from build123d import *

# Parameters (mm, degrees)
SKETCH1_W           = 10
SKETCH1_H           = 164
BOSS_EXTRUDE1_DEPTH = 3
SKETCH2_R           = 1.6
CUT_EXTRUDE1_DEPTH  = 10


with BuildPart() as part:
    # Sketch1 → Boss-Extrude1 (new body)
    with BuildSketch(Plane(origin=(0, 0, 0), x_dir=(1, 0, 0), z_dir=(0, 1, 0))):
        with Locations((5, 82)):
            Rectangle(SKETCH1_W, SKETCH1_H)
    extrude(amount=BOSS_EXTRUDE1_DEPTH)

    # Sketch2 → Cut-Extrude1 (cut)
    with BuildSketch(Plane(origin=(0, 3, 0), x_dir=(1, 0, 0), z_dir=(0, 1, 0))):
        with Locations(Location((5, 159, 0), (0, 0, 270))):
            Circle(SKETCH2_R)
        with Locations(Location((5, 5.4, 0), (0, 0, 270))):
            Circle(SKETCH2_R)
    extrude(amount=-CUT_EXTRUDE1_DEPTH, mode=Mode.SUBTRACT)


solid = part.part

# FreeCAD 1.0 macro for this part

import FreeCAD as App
import Part
import Sketcher

V = App.Vector
Q = App.Units.Quantity

doc = App.newDocument("Part")
body = doc.addObject("PartDesign::Body", "Body")

# Sketch on XZ plane
sketch1 = body.newObject("Sketcher::SketchObject", "Sketch")
sketch1.AttachmentSupport = (doc.getObject("XZ_Plane"), [""])
sketch1.MapMode = "FlatFace"
sketch1.addGeometry([
    Part.LineSegment(V(0, -164, 0), V(0, 0, 0)),
    Part.LineSegment(V(0, 0, 0), V(10, 0, 0)),
    Part.LineSegment(V(10, 0, 0), V(10, -164, 0)),
    Part.LineSegment(V(10, -164, 0), V(0, -164, 0)),
], False)
sketch1.addConstraint([
    Sketcher.Constraint("Coincident", 0, 2, 1, 1),
    Sketcher.Constraint("Coincident", 1, 2, 2, 1),
    Sketcher.Constraint("Coincident", 2, 2, 3, 1),
    Sketcher.Constraint("Coincident", 3, 2, 0, 1),
    Sketcher.Constraint("Vertical", 0),
    Sketcher.Constraint("Horizontal", 1),
    Sketcher.Constraint("Vertical", 2),
    Sketcher.Constraint("Horizontal", 3),
    Sketcher.Constraint("Coincident", 0, 2, -1, 1),
    Sketcher.Constraint("DistanceX", 1, 1, 1, 2, Q("10 mm")),
    Sketcher.Constraint("DistanceY", 0, 1, 0, 2, Q("164 mm")),
])
pad1 = body.newObject("PartDesign::Pad", "Pad")
pad1.Profile = sketch1
pad1.Length = 3
pad1.Reversed = True

# Sketch on XZ plane
sketch2 = body.newObject("Sketcher::SketchObject", "Sketch001")
sketch2.AttachmentSupport = (doc.getObject("XZ_Plane"), [""])
sketch2.MapMode = "FlatFace"
sketch2.AttachmentOffset = App.Placement(V(0, 0, -3), App.Rotation())
sketch2.addGeometry([
    Part.Circle(V(5, -159, 0), V(0, 0, 1), 1.6),
    Part.Circle(V(5, -5.4, 0), V(0, 0, 1), 1.6),
], False)
sketch2.addConstraint([
    Sketcher.Constraint("Equal", 0, 1),
    Sketcher.Constraint("Vertical", 0, 3, 1, 3),
    Sketcher.Constraint("Diameter", 0, Q("3.2 mm")),
    Sketcher.Constraint("DistanceX", -1, 1, 0, 3, Q("5 mm")),
    Sketcher.Constraint("DistanceY", 0, 3, -1, 1, Q("159 mm")),
    Sketcher.Constraint("DistanceY", 1, 3, -1, 1, Q("5.4 mm")),
])
pocket1 = body.newObject("PartDesign::Pocket", "Pocket")
pocket1.Profile = sketch2
pocket1.Length = 10
pocket1.Reversed = True

doc.recompute()
